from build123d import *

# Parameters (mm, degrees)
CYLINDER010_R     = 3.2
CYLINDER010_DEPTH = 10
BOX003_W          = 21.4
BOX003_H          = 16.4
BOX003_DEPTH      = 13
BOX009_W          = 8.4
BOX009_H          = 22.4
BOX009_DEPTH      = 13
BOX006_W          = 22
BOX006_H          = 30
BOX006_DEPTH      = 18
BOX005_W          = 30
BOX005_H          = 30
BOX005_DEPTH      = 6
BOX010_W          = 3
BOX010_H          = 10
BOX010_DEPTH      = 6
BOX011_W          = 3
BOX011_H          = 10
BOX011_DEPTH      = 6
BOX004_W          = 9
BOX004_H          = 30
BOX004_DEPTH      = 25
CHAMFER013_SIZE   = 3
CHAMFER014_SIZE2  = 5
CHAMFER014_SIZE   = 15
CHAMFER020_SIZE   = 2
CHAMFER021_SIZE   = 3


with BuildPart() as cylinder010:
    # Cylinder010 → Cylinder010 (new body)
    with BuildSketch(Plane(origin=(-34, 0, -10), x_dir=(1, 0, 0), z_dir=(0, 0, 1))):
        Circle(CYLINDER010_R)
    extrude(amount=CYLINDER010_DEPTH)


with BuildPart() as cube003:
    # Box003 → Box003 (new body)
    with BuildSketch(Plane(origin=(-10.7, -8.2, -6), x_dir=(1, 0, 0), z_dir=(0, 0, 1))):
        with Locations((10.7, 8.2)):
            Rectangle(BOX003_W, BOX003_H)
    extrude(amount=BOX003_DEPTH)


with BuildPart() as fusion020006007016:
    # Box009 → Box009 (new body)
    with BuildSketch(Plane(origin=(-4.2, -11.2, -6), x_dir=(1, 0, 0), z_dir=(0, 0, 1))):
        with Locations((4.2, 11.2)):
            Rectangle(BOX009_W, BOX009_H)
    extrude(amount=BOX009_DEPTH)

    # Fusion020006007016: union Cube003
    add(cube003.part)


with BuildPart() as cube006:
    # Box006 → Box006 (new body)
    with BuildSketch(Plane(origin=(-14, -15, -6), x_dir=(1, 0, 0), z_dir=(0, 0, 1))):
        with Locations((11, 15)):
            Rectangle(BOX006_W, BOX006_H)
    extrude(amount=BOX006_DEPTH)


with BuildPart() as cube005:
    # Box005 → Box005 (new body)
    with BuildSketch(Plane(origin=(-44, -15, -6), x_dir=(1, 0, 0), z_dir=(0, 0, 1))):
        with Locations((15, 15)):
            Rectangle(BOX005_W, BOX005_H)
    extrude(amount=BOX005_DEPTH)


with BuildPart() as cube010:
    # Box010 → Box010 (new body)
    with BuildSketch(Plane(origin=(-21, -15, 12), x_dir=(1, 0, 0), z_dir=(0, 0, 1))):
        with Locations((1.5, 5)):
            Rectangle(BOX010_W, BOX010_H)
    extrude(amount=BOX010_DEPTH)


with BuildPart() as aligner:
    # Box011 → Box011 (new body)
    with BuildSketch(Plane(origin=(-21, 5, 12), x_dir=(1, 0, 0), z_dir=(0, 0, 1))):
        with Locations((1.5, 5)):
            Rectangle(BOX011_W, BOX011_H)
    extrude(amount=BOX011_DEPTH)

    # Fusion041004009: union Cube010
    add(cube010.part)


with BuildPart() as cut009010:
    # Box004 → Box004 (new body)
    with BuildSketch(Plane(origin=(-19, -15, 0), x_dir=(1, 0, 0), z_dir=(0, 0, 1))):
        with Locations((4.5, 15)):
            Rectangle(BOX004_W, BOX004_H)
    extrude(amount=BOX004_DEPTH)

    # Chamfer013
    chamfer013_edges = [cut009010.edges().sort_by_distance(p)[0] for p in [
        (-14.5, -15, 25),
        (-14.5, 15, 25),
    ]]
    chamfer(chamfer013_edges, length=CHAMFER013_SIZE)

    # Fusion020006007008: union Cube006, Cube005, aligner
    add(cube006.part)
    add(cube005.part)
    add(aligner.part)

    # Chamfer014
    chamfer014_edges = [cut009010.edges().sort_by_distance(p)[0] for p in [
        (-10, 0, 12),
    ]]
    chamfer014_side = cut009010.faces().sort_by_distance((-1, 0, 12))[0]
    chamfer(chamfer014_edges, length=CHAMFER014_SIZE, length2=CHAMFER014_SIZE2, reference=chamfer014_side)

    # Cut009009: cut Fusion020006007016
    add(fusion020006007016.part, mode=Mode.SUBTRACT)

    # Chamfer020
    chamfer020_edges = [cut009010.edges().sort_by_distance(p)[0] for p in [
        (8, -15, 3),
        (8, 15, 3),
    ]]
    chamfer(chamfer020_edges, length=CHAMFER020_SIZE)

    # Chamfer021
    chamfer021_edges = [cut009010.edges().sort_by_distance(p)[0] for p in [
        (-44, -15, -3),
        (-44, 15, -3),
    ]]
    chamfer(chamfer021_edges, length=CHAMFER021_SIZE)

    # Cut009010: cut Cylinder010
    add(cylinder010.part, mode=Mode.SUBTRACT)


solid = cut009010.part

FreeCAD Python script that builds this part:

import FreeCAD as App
import Part
import Sketcher
from FreeCAD import Vector


def edges_at(feature, points):
    """Names of the edges that pass closest to the given points."""
    edges = feature.Shape.Edges
    near = lambda p: min(range(len(edges)), key=lambda i: edges[i].distToShape(Part.Vertex(*p))[0])
    return sorted({f"Edge{near(p) + 1}" for p in points})


def add_polygon(sketch, points):
    """Adds a closed chain of lines whose ends are joined by coincident constraints."""
    first, n = sketch.GeometryCount, len(points)
    for a, b in zip(points, points[1:] + points[:1]):
        sketch.addGeometry(Part.LineSegment(App.Vector(*a, 0), App.Vector(*b, 0)), False)
    for i in range(n):
        sketch.addConstraint(Sketcher.Constraint("Coincident", first + i, 2, first + (i + 1) % n, 1))

doc = App.newDocument("Part")
body = doc.addObject("PartDesign::Body", "Body")

sketch1 = doc.addObject("Sketcher::SketchObject", "Sketch")
body.addObject(sketch1)
sketch1.AttachmentSupport = (doc.XY_Plane, [""])
sketch1.MapMode = "FlatFace"
sketch1.AttachmentOffset = App.Placement(Vector(0, 0, -10), App.Rotation())
sketch1.addGeometry(Part.Circle(Vector(-34, 0, 0), Vector(0, 0, 1), 3.2), False)
sketch1.addConstraint(Sketcher.Constraint("PointOnObject", 0, 3, -1))
sketch1.addConstraint(Sketcher.Constraint("Diameter", 0, 6.4))
sketch1.addConstraint(Sketcher.Constraint("DistanceX", 0, 3, -1, 1, 34.0))
pad1 = doc.addObject("PartDesign::Pad", "Pad")
body.addObject(pad1)
pad1.Profile = sketch1
pad1.Length = 10
body2 = doc.addObject("PartDesign::Body", "Body001")

sketch2 = doc.addObject("Sketcher::SketchObject", "Sketch001")
body2.addObject(sketch2)
sketch2.AttachmentSupport = (doc.getObject("XY_Plane001"), [""])
sketch2.MapMode = "FlatFace"
sketch2.AttachmentOffset = App.Placement(Vector(0, 0, -6), App.Rotation())
add_polygon(sketch2, [(-11, 8), (-11, -8), (11, -8), (11, 8)])
sketch2.addConstraint(Sketcher.Constraint("Vertical", 0))
sketch2.addConstraint(Sketcher.Constraint("Horizontal", 1))
sketch2.addConstraint(Sketcher.Constraint("Vertical", 2))
sketch2.addConstraint(Sketcher.Constraint("Horizontal", 3))
sketch2.addConstraint(Sketcher.Constraint("Symmetric", 0, 2, 2, 2, -1, 1))
sketch2.addConstraint(Sketcher.Constraint("DistanceX", 1, 1, 1, 2, 21.4))
sketch2.addConstraint(Sketcher.Constraint("DistanceY", 0, 2, 0, 1, 16.4))
pad2 = doc.addObject("PartDesign::Pad", "Pad001")
body2.addObject(pad2)
pad2.Profile = sketch2
pad2.Length = 13
body3 = doc.addObject("PartDesign::Body", "Body002")

sketch3 = doc.addObject("Sketcher::SketchObject", "Sketch002")
body3.addObject(sketch3)
sketch3.AttachmentSupport = (doc.getObject("XY_Plane002"), [""])
sketch3.MapMode = "FlatFace"
sketch3.AttachmentOffset = App.Placement(Vector(0, 0, -6), App.Rotation())
add_polygon(sketch3, [(-4, 11), (-4, -11), (4, -11), (4, 11)])
sketch3.addConstraint(Sketcher.Constraint("Vertical", 0))
sketch3.addConstraint(Sketcher.Constraint("Horizontal", 1))
sketch3.addConstraint(Sketcher.Constraint("Vertical", 2))
sketch3.addConstraint(Sketcher.Constraint("Horizontal", 3))
sketch3.addConstraint(Sketcher.Constraint("Symmetric", 0, 2, 2, 2, -1, 1))
sketch3.addConstraint(Sketcher.Constraint("DistanceX", 1, 1, 1, 2, 8.4))
sketch3.addConstraint(Sketcher.Constraint("DistanceY", 0, 2, 0, 1, 22.4))
pad3 = doc.addObject("PartDesign::Pad", "Pad002")
body3.addObject(pad3)
pad3.Profile = sketch3
pad3.Length = 13
doc.recompute()

boolean = doc.addObject("PartDesign::Boolean", "Boolean")
body3.addObject(boolean)
boolean.Type = "Fuse"
boolean.addObjects([body2])
body4 = doc.addObject("PartDesign::Body", "Body003")

sketch4 = doc.addObject("Sketcher::SketchObject", "Sketch003")
body4.addObject(sketch4)
sketch4.AttachmentSupport = (doc.getObject("XY_Plane003"), [""])
sketch4.MapMode = "FlatFace"
sketch4.AttachmentOffset = App.Placement(Vector(0, 0, -6), App.Rotation())
add_polygon(sketch4, [(-14, 15), (-14, -15), (8, -15), (8, 15)])
sketch4.addConstraint(Sketcher.Constraint("Vertical", 0))
sketch4.addConstraint(Sketcher.Constraint("Horizontal", 1))
sketch4.addConstraint(Sketcher.Constraint("Vertical", 2))
sketch4.addConstraint(Sketcher.Constraint("Horizontal", 3))
sketch4.addConstraint(Sketcher.Constraint("DistanceX", 1, 1, 1, 2, 22.0))
sketch4.addConstraint(Sketcher.Constraint("DistanceY", 0, 2, 0, 1, 30.0))
sketch4.addConstraint(Sketcher.Constraint("DistanceX", 0, 2, -1, 1, 14.0))
sketch4.addConstraint(Sketcher.Constraint("DistanceY", 0, 2, -1, 1, 15.0))
pad4 = doc.addObject("PartDesign::Pad", "Pad003")
body4.addObject(pad4)
pad4.Profile = sketch4
pad4.Length = 18
body5 = doc.addObject("PartDesign::Body", "Body004")

sketch5 = doc.addObject("Sketcher::SketchObject", "Sketch004")
body5.addObject(sketch5)
sketch5.AttachmentSupport = (doc.getObject("XY_Plane004"), [""])
sketch5.MapMode = "FlatFace"
sketch5.AttachmentOffset = App.Placement(Vector(0, 0, -6), App.Rotation())
add_polygon(sketch5, [(-44, 15), (-44, -15), (-14, -15), (-14, 15)])
sketch5.addConstraint(Sketcher.Constraint("Vertical", 0))
sketch5.addConstraint(Sketcher.Constraint("Horizontal", 1))
sketch5.addConstraint(Sketcher.Constraint("Vertical", 2))
sketch5.addConstraint(Sketcher.Constraint("Horizontal", 3))
sketch5.addConstraint(Sketcher.Constraint("Equal", 3, 0))
sketch5.addConstraint(Sketcher.Constraint("DistanceX", 1, 1, 1, 2, 30.0))
sketch5.addConstraint(Sketcher.Constraint("DistanceX", 0, 2, -1, 1, 44.0))
sketch5.addConstraint(Sketcher.Constraint("DistanceY", 0, 2, -1, 1, 15.0))
pad5 = doc.addObject("PartDesign::Pad", "Pad004")
body5.addObject(pad5)
pad5.Profile = sketch5
pad5.Length = 6
body6 = doc.addObject("PartDesign::Body", "Body005")

sketch6 = doc.addObject("Sketcher::SketchObject", "Sketch005")
body6.addObject(sketch6)
sketch6.AttachmentSupport = (doc.getObject("XY_Plane005"), [""])
sketch6.MapMode = "FlatFace"
sketch6.AttachmentOffset = App.Placement(Vector(0, 0, 12), App.Rotation())
add_polygon(sketch6, [(-21, -5), (-21, -15), (-18, -15), (-18, -5)])
sketch6.addConstraint(Sketcher.Constraint("Vertical", 0))
sketch6.addConstraint(Sketcher.Constraint("Horizontal", 1))
sketch6.addConstraint(Sketcher.Constraint("Vertical", 2))
sketch6.addConstraint(Sketcher.Constraint("Horizontal", 3))
sketch6.addConstraint(Sketcher.Constraint("DistanceX", 1, 1, 1, 2, 3.0))
sketch6.addConstraint(Sketcher.Constraint("DistanceY", 0, 2, 0, 1, 10.0))
sketch6.addConstraint(Sketcher.Constraint("DistanceX", 0, 2, -1, 1, 21.0))
sketch6.addConstraint(Sketcher.Constraint("DistanceY", 0, 2, -1, 1, 15.0))
pad6 = doc.addObject("PartDesign::Pad", "Pad005")
body6.addObject(pad6)
pad6.Profile = sketch6
pad6.Length = 6
body7 = doc.addObject("PartDesign::Body", "Body006")
body7.AllowCompound = True

sketch7 = doc.addObject("Sketcher::SketchObject", "Sketch006")
body7.addObject(sketch7)
sketch7.AttachmentSupport = (doc.getObject("XY_Plane006"), [""])
sketch7.MapMode = "FlatFace"
sketch7.AttachmentOffset = App.Placement(Vector(0, 0, 12), App.Rotation())
add_polygon(sketch7, [(-21, 15), (-21, 5), (-18, 5), (-18, 15)])
sketch7.addConstraint(Sketcher.Constraint("Vertical", 0))
sketch7.addConstraint(Sketcher.Constraint("Horizontal", 1))
sketch7.addConstraint(Sketcher.Constraint("Vertical", 2))
sketch7.addConstraint(Sketcher.Constraint("Horizontal", 3))
sketch7.addConstraint(Sketcher.Constraint("DistanceX", 1, 1, 1, 2, 3.0))
sketch7.addConstraint(Sketcher.Constraint("DistanceY", 0, 2, 0, 1, 10.0))
sketch7.addConstraint(Sketcher.Constraint("DistanceX", 0, 2, -1, 1, 21.0))
sketch7.addConstraint(Sketcher.Constraint("DistanceY", -1, 1, 0, 2, 5.0))
pad7 = doc.addObject("PartDesign::Pad", "Pad006")
body7.addObject(pad7)
pad7.Profile = sketch7
pad7.Length = 6
doc.recompute()

boolean2 = doc.addObject("PartDesign::Boolean", "Boolean001")
body7.addObject(boolean2)
boolean2.Type = "Fuse"
boolean2.addObjects([body6])
body8 = doc.addObject("PartDesign::Body", "Body007")

sketch8 = doc.addObject("Sketcher::SketchObject", "Sketch007")
body8.addObject(sketch8)
sketch8.AttachmentSupport = (doc.getObject("XY_Plane007"), [""])
sketch8.MapMode = "FlatFace"
add_polygon(sketch8, [(-19, 15), (-19, -15), (-10, -15), (-10, 15)])
sketch8.addConstraint(Sketcher.Constraint("Vertical", 0))
sketch8.addConstraint(Sketcher.Constraint("Horizontal", 1))
sketch8.addConstraint(Sketcher.Constraint("Vertical", 2))
sketch8.addConstraint(Sketcher.Constraint("Horizontal", 3))
sketch8.addConstraint(Sketcher.Constraint("DistanceX", 1, 1, 1, 2, 9.0))
sketch8.addConstraint(Sketcher.Constraint("DistanceY", 0, 2, 0, 1, 30.0))
sketch8.addConstraint(Sketcher.Constraint("DistanceX", 0, 2, -1, 1, 19.0))
sketch8.addConstraint(Sketcher.Constraint("DistanceY", 0, 2, -1, 1, 15.0))
pad8 = doc.addObject("PartDesign::Pad", "Pad007")
body8.addObject(pad8)
pad8.Profile = sketch8
pad8.Length = 25
doc.recompute()

chamfer = doc.addObject("PartDesign::Chamfer", "Chamfer")
body8.addObject(chamfer)
chamfer.Base = (pad8, edges_at(pad8, [(-14.5, -15, 25), (-14.5, 15, 25)]))
chamfer.Size = 3
doc.recompute()

boolean3 = doc.addObject("PartDesign::Boolean", "Boolean002")
body8.addObject(boolean3)
boolean3.Type = "Fuse"
boolean3.addObjects([body4])
doc.recompute()

boolean4 = doc.addObject("PartDesign::Boolean", "Boolean003")
body8.addObject(boolean4)
boolean4.Type = "Fuse"
boolean4.addObjects([body5])
doc.recompute()

boolean5 = doc.addObject("PartDesign::Boolean", "Boolean004")
body8.addObject(boolean5)
boolean5.Type = "Fuse"
boolean5.addObjects([body7])
doc.recompute()

chamfer2 = doc.addObject("PartDesign::Chamfer", "Chamfer001")
body8.addObject(chamfer2)
chamfer2.Base = (boolean5, edges_at(boolean5, [(-10, 0, 12)]))
chamfer2.ChamferType = "Two distances"
chamfer2.Size = 15
chamfer2.Size2 = 5
chamfer2.FlipDirection = True
doc.recompute()

boolean6 = doc.addObject("PartDesign::Boolean", "Boolean005")
body8.addObject(boolean6)
boolean6.Type = "Cut"
boolean6.addObjects([body3])
doc.recompute()

chamfer3 = doc.addObject("PartDesign::Chamfer", "Chamfer002")
body8.addObject(chamfer3)
chamfer3.Base = (boolean6, edges_at(boolean6, [(8, -15, 3), (8, 15, 3)]))
chamfer3.Size = 2
doc.recompute()

chamfer4 = doc.addObject("PartDesign::Chamfer", "Chamfer003")
body8.addObject(chamfer4)
chamfer4.Base = (chamfer3, edges_at(chamfer3, [(-44, -15, -3), (-44, 15, -3)]))
chamfer4.Size = 3
doc.recompute()

boolean7 = doc.addObject("PartDesign::Boolean", "Boolean006")
body8.addObject(boolean7)
boolean7.Type = "Cut"
boolean7.addObjects([body])

doc.recompute()
